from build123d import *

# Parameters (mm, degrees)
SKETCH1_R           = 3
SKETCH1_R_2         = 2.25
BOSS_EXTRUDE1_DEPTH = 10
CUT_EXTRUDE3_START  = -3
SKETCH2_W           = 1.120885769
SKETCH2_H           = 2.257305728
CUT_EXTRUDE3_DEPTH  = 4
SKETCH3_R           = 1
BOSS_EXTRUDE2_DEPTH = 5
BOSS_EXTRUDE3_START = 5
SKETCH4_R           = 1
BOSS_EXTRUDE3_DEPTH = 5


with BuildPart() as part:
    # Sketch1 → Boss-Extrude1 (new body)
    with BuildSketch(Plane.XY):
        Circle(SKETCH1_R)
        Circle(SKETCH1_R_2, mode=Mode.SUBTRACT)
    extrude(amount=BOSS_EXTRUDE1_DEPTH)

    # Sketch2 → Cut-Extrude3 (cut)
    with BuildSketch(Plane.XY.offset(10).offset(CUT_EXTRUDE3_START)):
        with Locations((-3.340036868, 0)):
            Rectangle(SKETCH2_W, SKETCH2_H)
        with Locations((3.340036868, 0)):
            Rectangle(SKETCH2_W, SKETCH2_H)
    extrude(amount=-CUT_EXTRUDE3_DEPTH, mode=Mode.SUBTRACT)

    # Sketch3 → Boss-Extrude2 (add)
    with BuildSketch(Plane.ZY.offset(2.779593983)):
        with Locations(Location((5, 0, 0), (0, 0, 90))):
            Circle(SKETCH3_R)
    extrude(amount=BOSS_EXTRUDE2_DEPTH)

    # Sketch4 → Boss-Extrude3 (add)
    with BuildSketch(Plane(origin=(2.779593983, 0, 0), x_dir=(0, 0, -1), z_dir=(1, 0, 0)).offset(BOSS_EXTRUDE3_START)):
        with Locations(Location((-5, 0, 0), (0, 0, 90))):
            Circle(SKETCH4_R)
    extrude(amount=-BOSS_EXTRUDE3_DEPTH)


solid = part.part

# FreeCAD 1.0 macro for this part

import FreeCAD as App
import Part
import Sketcher

doc = App.newDocument("Part")
body = doc.addObject("PartDesign::Body", "Body")

# Sketch on XY plane
sketch1 = doc.addObject("Sketcher::SketchObject", "Sketch")
body.addObject(sketch1)
sketch1.AttachmentSupport = (doc.XY_Plane, [""])
sketch1.MapMode = "FlatFace"
sketch1.addGeometry([
    Part.Circle(App.Vector(0, 0, 0), App.Vector(0, 0, 1), 3),
    Part.Circle(App.Vector(0, 0, 0), App.Vector(0, 0, 1), 2.25),
], False)
sketch1.addConstraint([
    Sketcher.Constraint("Coincident", 0, 3, -1, 1),
    Sketcher.Constraint("Coincident", 1, 3, -1, 1),
    Sketcher.Constraint("Diameter", 0, 6.0),
    Sketcher.Constraint("Diameter", 1, 4.5),
])
pad1 = doc.addObject("PartDesign::Pad", "Pad")
body.addObject(pad1)
pad1.Profile = sketch1
pad1.Length = 10

# Sketch on XY plane
sketch2 = doc.addObject("Sketcher::SketchObject", "Sketch001")
body.addObject(sketch2)
sketch2.AttachmentSupport = (doc.XY_Plane, [""])
sketch2.MapMode = "FlatFace"
sketch2.AttachmentOffset = App.Placement(App.Vector(0, 0, 7), App.Rotation())
sketch2.addGeometry([
    Part.LineSegment(App.Vector(-3.90048, 1.128653, 0), App.Vector(-3.90048, -1.128653, 0)),  # 0
    Part.LineSegment(App.Vector(-3.90048, -1.128653, 0), App.Vector(-2.779594, -1.128653, 0)),  # 1
    Part.LineSegment(App.Vector(-2.779594, -1.128653, 0), App.Vector(-2.779594, 1.128653, 0)),  # 2
    Part.LineSegment(App.Vector(-2.779594, 1.128653, 0), App.Vector(-3.90048, 1.128653, 0)),  # 3
    Part.LineSegment(App.Vector(2.779594, 1.128653, 0), App.Vector(2.779594, -1.128653, 0)),  # 4
    Part.LineSegment(App.Vector(2.779594, -1.128653, 0), App.Vector(3.90048, -1.128653, 0)),  # 5
    Part.LineSegment(App.Vector(3.90048, -1.128653, 0), App.Vector(3.90048, 1.128653, 0)),  # 6
    Part.LineSegment(App.Vector(3.90048, 1.128653, 0), App.Vector(2.779594, 1.128653, 0)),  # 7
], False)
sketch2.addConstraint([
    Sketcher.Constraint("Coincident", 0, 2, 1, 1),
    Sketcher.Constraint("Coincident", 1, 2, 2, 1),
    Sketcher.Constraint("Coincident", 2, 2, 3, 1),
    Sketcher.Constraint("Coincident", 3, 2, 0, 1),
    Sketcher.Constraint("Coincident", 4, 2, 5, 1),
    Sketcher.Constraint("Coincident", 5, 2, 6, 1),
    Sketcher.Constraint("Coincident", 6, 2, 7, 1),
    Sketcher.Constraint("Coincident", 7, 2, 4, 1),
    Sketcher.Constraint("Vertical", 0),
    Sketcher.Constraint("Horizontal", 1),
    Sketcher.Constraint("Vertical", 2),
    Sketcher.Constraint("Horizontal", 3),
    Sketcher.Constraint("Vertical", 4),
    Sketcher.Constraint("Horizontal", 5),
    Sketcher.Constraint("Vertical", 6),
    Sketcher.Constraint("Horizontal", 7),
    Sketcher.Constraint("Symmetric", 2, 2, 4, 2, -1, 1),
    Sketcher.Constraint("Symmetric", 0, 2, 6, 2, -1, 1),
    Sketcher.Constraint("Horizontal", 1, 2, 4, 2),
    Sketcher.Constraint("DistanceX", 1, 1, 1, 2, 1.120886),
    Sketcher.Constraint("DistanceY", 0, 2, 0, 1, 2.257306),
    Sketcher.Constraint("DistanceX", 0, 2, -1, 1, 3.90048),
])
pocket1 = doc.addObject("PartDesign::Pocket", "Pocket")
body.addObject(pocket1)
pocket1.Profile = sketch2
pocket1.Length = 4

# Sketch on YZ plane
sketch3 = doc.addObject("Sketcher::SketchObject", "Sketch002")
body.addObject(sketch3)
sketch3.AttachmentSupport = (doc.YZ_Plane, [""])
sketch3.MapMode = "FlatFace"
sketch3.AttachmentOffset = App.Placement(App.Vector(0, 0, -2.779594), App.Rotation())
sketch3.addGeometry(Part.Circle(App.Vector(0, 5, 0), App.Vector(0, 0, 1), 1), False)
sketch3.addConstraint([
    Sketcher.Constraint("PointOnObject", 0, 3, -2),
    Sketcher.Constraint("Diameter", 0, 2.0),
    Sketcher.Constraint("DistanceY", -1, 1, 0, 3, 5.0),
])
pad2 = doc.addObject("PartDesign::Pad", "Pad001")
body.addObject(pad2)
pad2.Profile = sketch3
pad2.Length = 5
pad2.Reversed = True

# Sketch on YZ plane
sketch4 = doc.addObject("Sketcher::SketchObject", "Sketch003")
body.addObject(sketch4)
sketch4.AttachmentSupport = (doc.YZ_Plane, [""])
sketch4.MapMode = "FlatFace"
sketch4.AttachmentOffset = App.Placement(App.Vector(0, 0, 7.779594), App.Rotation())
sketch4.addGeometry(Part.Circle(App.Vector(0, 5, 0), App.Vector(0, 0, 1), 1), False)
sketch4.addConstraint([
    Sketcher.Constraint("PointOnObject", 0, 3, -2),
    Sketcher.Constraint("Diameter", 0, 2.0),
    Sketcher.Constraint("DistanceY", -1, 1, 0, 3, 5.0),
])
pad3 = doc.addObject("PartDesign::Pad", "Pad002")
body.addObject(pad3)
pad3.Profile = sketch4
pad3.Length = 5
pad3.Reversed = True

doc.recompute()
